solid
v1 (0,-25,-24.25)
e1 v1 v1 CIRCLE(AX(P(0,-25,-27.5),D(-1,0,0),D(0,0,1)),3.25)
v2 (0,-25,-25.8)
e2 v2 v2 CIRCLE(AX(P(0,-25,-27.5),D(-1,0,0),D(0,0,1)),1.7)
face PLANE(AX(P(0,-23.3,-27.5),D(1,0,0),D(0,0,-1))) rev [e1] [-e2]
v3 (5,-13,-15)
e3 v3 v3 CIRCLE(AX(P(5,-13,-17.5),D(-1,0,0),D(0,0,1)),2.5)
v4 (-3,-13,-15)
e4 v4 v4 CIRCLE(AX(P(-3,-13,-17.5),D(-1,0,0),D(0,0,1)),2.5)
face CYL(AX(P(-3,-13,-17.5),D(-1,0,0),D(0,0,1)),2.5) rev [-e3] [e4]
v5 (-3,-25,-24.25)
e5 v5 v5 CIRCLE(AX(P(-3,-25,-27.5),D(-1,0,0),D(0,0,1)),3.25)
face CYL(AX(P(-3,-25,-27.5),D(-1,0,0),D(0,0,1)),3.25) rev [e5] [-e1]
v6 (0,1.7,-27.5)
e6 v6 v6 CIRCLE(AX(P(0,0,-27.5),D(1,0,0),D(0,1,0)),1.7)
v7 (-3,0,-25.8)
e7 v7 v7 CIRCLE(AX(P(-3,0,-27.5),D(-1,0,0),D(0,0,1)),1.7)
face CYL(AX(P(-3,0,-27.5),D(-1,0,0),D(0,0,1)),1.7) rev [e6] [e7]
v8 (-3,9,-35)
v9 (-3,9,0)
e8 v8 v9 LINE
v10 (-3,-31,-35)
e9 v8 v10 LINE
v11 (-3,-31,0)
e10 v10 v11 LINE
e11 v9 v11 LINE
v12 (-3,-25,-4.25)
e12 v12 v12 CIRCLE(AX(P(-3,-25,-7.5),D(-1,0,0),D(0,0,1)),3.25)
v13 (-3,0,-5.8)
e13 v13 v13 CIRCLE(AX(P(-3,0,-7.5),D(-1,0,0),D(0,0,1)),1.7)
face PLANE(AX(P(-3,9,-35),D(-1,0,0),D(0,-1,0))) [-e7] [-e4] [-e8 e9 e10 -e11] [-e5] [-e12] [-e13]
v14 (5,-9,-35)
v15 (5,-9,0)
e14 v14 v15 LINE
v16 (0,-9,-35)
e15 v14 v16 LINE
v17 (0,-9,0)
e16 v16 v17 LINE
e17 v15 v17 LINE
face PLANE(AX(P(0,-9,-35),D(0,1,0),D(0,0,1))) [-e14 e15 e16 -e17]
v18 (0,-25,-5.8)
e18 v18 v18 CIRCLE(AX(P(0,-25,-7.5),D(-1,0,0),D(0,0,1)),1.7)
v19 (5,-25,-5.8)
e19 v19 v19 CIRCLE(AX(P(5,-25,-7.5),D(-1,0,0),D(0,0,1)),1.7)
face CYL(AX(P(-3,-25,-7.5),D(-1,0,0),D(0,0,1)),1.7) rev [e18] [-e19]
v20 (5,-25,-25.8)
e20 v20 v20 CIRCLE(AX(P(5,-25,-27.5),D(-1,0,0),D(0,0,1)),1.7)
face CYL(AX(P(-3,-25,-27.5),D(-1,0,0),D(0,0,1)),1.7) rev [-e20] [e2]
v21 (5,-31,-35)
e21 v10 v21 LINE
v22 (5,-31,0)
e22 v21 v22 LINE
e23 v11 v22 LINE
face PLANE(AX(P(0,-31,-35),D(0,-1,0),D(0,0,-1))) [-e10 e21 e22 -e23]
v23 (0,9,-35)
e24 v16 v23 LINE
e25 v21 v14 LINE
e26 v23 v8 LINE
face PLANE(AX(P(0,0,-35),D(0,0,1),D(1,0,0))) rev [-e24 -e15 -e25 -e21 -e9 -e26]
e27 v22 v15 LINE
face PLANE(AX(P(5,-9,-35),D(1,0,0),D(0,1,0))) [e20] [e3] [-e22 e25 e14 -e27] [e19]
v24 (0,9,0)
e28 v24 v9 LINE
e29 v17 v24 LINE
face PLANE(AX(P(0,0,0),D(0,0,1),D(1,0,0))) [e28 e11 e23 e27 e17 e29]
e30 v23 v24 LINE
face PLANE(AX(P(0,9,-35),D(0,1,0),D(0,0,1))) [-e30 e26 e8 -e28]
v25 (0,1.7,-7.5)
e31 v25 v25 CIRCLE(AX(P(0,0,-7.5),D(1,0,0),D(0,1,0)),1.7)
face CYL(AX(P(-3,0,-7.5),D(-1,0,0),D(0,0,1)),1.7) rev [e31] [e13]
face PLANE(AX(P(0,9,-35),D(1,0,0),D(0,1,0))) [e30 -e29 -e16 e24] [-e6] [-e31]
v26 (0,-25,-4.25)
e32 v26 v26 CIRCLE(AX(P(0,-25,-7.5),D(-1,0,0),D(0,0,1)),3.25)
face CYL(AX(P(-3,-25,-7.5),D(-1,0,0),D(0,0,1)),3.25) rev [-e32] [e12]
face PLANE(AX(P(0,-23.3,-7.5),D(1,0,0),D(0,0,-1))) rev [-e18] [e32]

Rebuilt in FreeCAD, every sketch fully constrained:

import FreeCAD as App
import Part
import Sketcher
Q = App.Units.Quantity


def add_polygon(sketch, points):
    """Adds a closed chain of lines whose ends are joined by coincident constraints."""
    first, n = sketch.GeometryCount, len(points)
    for a, b in zip(points, points[1:] + points[:1]):
        sketch.addGeometry(Part.LineSegment(App.Vector(*a, 0), App.Vector(*b, 0)), False)
    for i in range(n):
        sketch.addConstraint(Sketcher.Constraint("Coincident", first + i, 2, first + (i + 1) % n, 1))

doc = App.newDocument("Part")
body = doc.addObject("PartDesign::Body", "Body")

# Sketch on XY plane
sketch1 = body.newObject("Sketcher::SketchObject", "Sketch")
sketch1.AttachmentSupport = (doc.getObject("XY_Plane"), [""])
sketch1.MapMode = "FlatFace"
add_polygon(sketch1, [(0, 9), (-3, 9), (-3, -31), (5, -31), (5, -9), (0, -9)])  # lines 0-5
sketch1.addConstraint([
    Sketcher.Constraint("Horizontal", 0),
    Sketcher.Constraint("Vertical", 1),
    Sketcher.Constraint("Horizontal", 2),
    Sketcher.Constraint("Vertical", 3),
    Sketcher.Constraint("Horizontal", 4),
    Sketcher.Constraint("Vertical", 5),
    Sketcher.Constraint("Symmetric", 4, 2, 5, 2, -1, 1),
    Sketcher.Constraint("DistanceX", 0, 2, 0, 1, Q("3 mm")),
    Sketcher.Constraint("DistanceX", 2, 1, 2, 2, Q("8 mm")),
    Sketcher.Constraint("DistanceY", 1, 2, 1, 1, Q("40 mm")),
    Sketcher.Constraint("DistanceY", 3, 1, 3, 2, Q("22 mm")),
])
pad1 = body.newObject("PartDesign::Pad", "Pad")
pad1.Profile = sketch1
pad1.Length = 35
pad1.Reversed = True

# Sketch on YZ plane
sketch2 = body.newObject("Sketcher::SketchObject", "Sketch001")
sketch2.AttachmentSupport = (doc.getObject("YZ_Plane"), [""])
sketch2.MapMode = "FlatFace"
sketch2.AttachmentOffset = App.Placement(App.Vector(0, 0, -3), App.Rotation())
sketch2.addGeometry([
    Part.Circle(App.Vector(0, -7.5, 0), App.Vector(0, 0, 1), 1.7),
    Part.Circle(App.Vector(0, -27.5, 0), App.Vector(0, 0, 1), 1.7),
], False)
sketch2.addConstraint([
    Sketcher.Constraint("Equal", 0, 1),
    Sketcher.Constraint("PointOnObject", 0, 3, -2),
    Sketcher.Constraint("PointOnObject", 1, 3, -2),
    Sketcher.Constraint("Diameter", 0, Q("3.4 mm")),
    Sketcher.Constraint("DistanceY", 1, 3, 0, 3, Q("20 mm")),
    Sketcher.Constraint("DistanceY", 0, 3, -1, 1, Q("7.5 mm")),
])
doc.recompute()
hole = body.newObject("PartDesign::Hole", "Hole")
hole.Profile = sketch2
hole.ThreadType = "None"
hole.Diameter = 3.4
hole.DepthType = "ThroughAll"
hole.Reversed = True

# Sketch on YZ plane
sketch3 = body.newObject("Sketcher::SketchObject", "Sketch002")
sketch3.AttachmentSupport = (doc.getObject("YZ_Plane"), [""])
sketch3.MapMode = "FlatFace"
sketch3.AttachmentOffset = App.Placement(App.Vector(0, 0, -3), App.Rotation())
sketch3.addGeometry([
    Part.Circle(App.Vector(-25, -7.5, 0), App.Vector(0, 0, 1), 1.7),
    Part.Circle(App.Vector(-25, -27.5, 0), App.Vector(0, 0, 1), 1.7),
], False)
sketch3.addConstraint([
    Sketcher.Constraint("Equal", 0, 1),
    Sketcher.Constraint("Vertical", 0, 3, 1, 3),
    Sketcher.Constraint("Diameter", 0, Q("3.4 mm")),
    Sketcher.Constraint("DistanceX", 0, 3, -1, 1, Q("25 mm")),
    Sketcher.Constraint("DistanceY", 1, 3, 0, 3, Q("20 mm")),
    Sketcher.Constraint("DistanceY", 0, 3, -1, 1, Q("7.5 mm")),
])
doc.recompute()
hole2 = body.newObject("PartDesign::Hole", "Hole001")
hole2.Profile = sketch3
hole2.ThreadType = "None"
hole2.Diameter = 3.4
hole2.DepthType = "ThroughAll"
hole2.HoleCutType = "Counterbore"
hole2.HoleCutDiameter = 6.5
hole2.HoleCutDepth = 3
hole2.Reversed = True

# Sketch on YZ plane
sketch4 = body.newObject("Sketcher::SketchObject", "Sketch003")
sketch4.AttachmentSupport = (doc.getObject("YZ_Plane"), [""])
sketch4.MapMode = "FlatFace"
sketch4.AttachmentOffset = App.Placement(App.Vector(0, 0, -3), App.Rotation())
sketch4.addGeometry(Part.Circle(App.Vector(-13, -17.5, 0), App.Vector(0, 0, 1), 2.5), False)
sketch4.addConstraint([
    Sketcher.Constraint("Diameter", 0, Q("5 mm")),
    Sketcher.Constraint("DistanceX", 0, 3, -1, 1, Q("13 mm")),
    Sketcher.Constraint("DistanceY", 0, 3, -1, 1, Q("17.5 mm")),
])
doc.recompute()
hole3 = body.newObject("PartDesign::Hole", "Hole002")
hole3.Profile = sketch4
hole3.ThreadType = "None"
hole3.Diameter = 5
hole3.DepthType = "ThroughAll"
hole3.Reversed = True

doc.recompute()
